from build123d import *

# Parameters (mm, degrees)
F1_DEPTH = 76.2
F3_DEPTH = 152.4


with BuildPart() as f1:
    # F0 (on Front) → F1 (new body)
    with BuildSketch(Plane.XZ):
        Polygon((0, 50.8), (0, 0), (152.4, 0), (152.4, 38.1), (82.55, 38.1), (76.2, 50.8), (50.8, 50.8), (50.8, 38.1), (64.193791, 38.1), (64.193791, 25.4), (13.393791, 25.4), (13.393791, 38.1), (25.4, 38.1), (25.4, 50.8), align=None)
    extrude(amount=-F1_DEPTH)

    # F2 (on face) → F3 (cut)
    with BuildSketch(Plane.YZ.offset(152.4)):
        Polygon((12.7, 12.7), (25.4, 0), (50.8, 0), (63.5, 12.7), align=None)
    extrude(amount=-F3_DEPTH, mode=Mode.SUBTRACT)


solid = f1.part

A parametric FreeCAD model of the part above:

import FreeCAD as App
import Part
import Sketcher
from FreeCAD import Vector
Q = App.Units.Quantity


def add_polygon(sketch, points):
    """Adds a closed chain of lines whose ends are joined by coincident constraints."""
    first, n = sketch.GeometryCount, len(points)
    for a, b in zip(points, points[1:] + points[:1]):
        sketch.addGeometry(Part.LineSegment(App.Vector(*a, 0), App.Vector(*b, 0)), False)
    for i in range(n):
        sketch.addConstraint(Sketcher.Constraint("Coincident", first + i, 2, first + (i + 1) % n, 1))

doc = App.newDocument("Part")
params = doc.addObject("Spreadsheet::Sheet", "Params")
for row, (alias, value) in enumerate([
    ("sketch1_width", "6 in"),
    ("sketch1_width2", "1 in"),
    ("sketch1_width3", "2 in"),
    ("sketch1_height", "1.5 in"),
    ("sketch1_width4", "2.75 in"),
    ("pad1_length", "3 in"),
    ("sketch2_width", "1 in"),
    ("sketch2_width2", "2 in"),
    ("pocket1_length", "6 in"),
], start=1):
    params.set(f"A{row}", alias)
    params.set(f"B{row}", "=" + value)
    params.setAlias(f"B{row}", alias)

body = doc.addObject("PartDesign::Body", "Body")

sketch1 = doc.addObject("Sketcher::SketchObject", "Sketch")
body.addObject(sketch1)
sketch1.AttachmentSupport = (doc.XZ_Plane, [""])
sketch1.MapMode = "FlatFace"
add_polygon(sketch1, [(0, 51), (0, 0), (152, 0), (152, 38), (83, 38), (76, 51), (51, 51), (51, 38), (64, 38), (64, 25), (13, 25), (13, 38), (25, 38), (25, 51)])
sketch1.addConstraint([
    Sketcher.Constraint("Vertical", 0),
    Sketcher.Constraint("Horizontal", 1),
    Sketcher.Constraint("Vertical", 2),
    Sketcher.Constraint("Horizontal", 3),
    Sketcher.Constraint("Horizontal", 5),
    Sketcher.Constraint("Vertical", 6),
    Sketcher.Constraint("Horizontal", 7),
    Sketcher.Constraint("Vertical", 8),
    Sketcher.Constraint("Horizontal", 9),
    Sketcher.Constraint("Vertical", 10),
    Sketcher.Constraint("Horizontal", 11),
    Sketcher.Constraint("Vertical", 12),
    Sketcher.Constraint("Horizontal", 13),
    Sketcher.Constraint("Coincident", 0, 2, -1, 1),
    Sketcher.Constraint("Horizontal", 3, 2, 6, 2),
    Sketcher.Constraint("Horizontal", 7, 2, 10, 2),
    Sketcher.Constraint("Horizontal", 5, 2, 12, 2),
    Sketcher.Constraint("Equal", 5, 13),
    Sketcher.Constraint("Equal", 9, 0),
    Sketcher.Constraint("Equal", 6, 8),
    Sketcher.Constraint("DistanceX", 1, 1, 1, 2, Q("6 in")),
    Sketcher.Constraint("DistanceX", 5, 2, 5, 1, Q("1 in")),
    Sketcher.Constraint("DistanceX", 9, 2, 9, 1, Q("2 in")),
    Sketcher.Constraint("DistanceY", 2, 1, 2, 2, Q("1.5 in")),
    Sketcher.Constraint("DistanceX", -1, 1, 4, 2, Q("3 in")),
    Sketcher.Constraint("DistanceX", 3, 2, 3, 1, Q("2.75 in")),
    Sketcher.Constraint("DistanceX", 7, 1, 7, 2, Q("13.393791 mm")),
])
sketch1.setExpression("Constraints[34]", "Params.sketch1_width")
sketch1.setExpression("Constraints[35]", "Params.sketch1_width2")
sketch1.setExpression("Constraints[36]", "Params.sketch1_width3")
sketch1.setExpression("Constraints[37]", "Params.sketch1_height")
sketch1.setExpression("Constraints[39]", "Params.sketch1_width4")
pad1 = doc.addObject("PartDesign::Pad", "Pad")
body.addObject(pad1)
pad1.Profile = sketch1
pad1.setExpression("Length", "Params.pad1_length")
pad1.Reversed = True

sketch2 = doc.addObject("Sketcher::SketchObject", "Sketch001")
body.addObject(sketch2)
sketch2.AttachmentSupport = (doc.YZ_Plane, [""])
sketch2.MapMode = "FlatFace"
sketch2.AttachmentOffset = App.Placement(Vector(0, 0, 6 * 25.4), App.Rotation())
add_polygon(sketch2, [(13, 13), (25, 0), (51, 0), (64, 13)])
sketch2.addConstraint([
    Sketcher.Constraint("Horizontal", 1),
    Sketcher.Constraint("Horizontal", 3),
    Sketcher.Constraint("PointOnObject", 0, 2, -1),
    Sketcher.Constraint("Perpendicular", 0, 2),
    Sketcher.Constraint("Equal", 0, 2),
    Sketcher.Constraint("DistanceX", 1, 1, 1, 2, Q("1 in")),
    Sketcher.Constraint("DistanceX", 3, 2, 3, 1, Q("2 in")),
    Sketcher.Constraint("DistanceX", -1, 1, 0, 2, Q("1 in")),
])
sketch2.setExpression("Constraints[9]", "Params.sketch2_width")
sketch2.setExpression("Constraints[10]", "Params.sketch2_width2")
pocket1 = doc.addObject("PartDesign::Pocket", "Pocket")
body.addObject(pocket1)
pocket1.Profile = sketch2
pocket1.setExpression("Length", "Params.pocket1_length")

doc.recompute()
